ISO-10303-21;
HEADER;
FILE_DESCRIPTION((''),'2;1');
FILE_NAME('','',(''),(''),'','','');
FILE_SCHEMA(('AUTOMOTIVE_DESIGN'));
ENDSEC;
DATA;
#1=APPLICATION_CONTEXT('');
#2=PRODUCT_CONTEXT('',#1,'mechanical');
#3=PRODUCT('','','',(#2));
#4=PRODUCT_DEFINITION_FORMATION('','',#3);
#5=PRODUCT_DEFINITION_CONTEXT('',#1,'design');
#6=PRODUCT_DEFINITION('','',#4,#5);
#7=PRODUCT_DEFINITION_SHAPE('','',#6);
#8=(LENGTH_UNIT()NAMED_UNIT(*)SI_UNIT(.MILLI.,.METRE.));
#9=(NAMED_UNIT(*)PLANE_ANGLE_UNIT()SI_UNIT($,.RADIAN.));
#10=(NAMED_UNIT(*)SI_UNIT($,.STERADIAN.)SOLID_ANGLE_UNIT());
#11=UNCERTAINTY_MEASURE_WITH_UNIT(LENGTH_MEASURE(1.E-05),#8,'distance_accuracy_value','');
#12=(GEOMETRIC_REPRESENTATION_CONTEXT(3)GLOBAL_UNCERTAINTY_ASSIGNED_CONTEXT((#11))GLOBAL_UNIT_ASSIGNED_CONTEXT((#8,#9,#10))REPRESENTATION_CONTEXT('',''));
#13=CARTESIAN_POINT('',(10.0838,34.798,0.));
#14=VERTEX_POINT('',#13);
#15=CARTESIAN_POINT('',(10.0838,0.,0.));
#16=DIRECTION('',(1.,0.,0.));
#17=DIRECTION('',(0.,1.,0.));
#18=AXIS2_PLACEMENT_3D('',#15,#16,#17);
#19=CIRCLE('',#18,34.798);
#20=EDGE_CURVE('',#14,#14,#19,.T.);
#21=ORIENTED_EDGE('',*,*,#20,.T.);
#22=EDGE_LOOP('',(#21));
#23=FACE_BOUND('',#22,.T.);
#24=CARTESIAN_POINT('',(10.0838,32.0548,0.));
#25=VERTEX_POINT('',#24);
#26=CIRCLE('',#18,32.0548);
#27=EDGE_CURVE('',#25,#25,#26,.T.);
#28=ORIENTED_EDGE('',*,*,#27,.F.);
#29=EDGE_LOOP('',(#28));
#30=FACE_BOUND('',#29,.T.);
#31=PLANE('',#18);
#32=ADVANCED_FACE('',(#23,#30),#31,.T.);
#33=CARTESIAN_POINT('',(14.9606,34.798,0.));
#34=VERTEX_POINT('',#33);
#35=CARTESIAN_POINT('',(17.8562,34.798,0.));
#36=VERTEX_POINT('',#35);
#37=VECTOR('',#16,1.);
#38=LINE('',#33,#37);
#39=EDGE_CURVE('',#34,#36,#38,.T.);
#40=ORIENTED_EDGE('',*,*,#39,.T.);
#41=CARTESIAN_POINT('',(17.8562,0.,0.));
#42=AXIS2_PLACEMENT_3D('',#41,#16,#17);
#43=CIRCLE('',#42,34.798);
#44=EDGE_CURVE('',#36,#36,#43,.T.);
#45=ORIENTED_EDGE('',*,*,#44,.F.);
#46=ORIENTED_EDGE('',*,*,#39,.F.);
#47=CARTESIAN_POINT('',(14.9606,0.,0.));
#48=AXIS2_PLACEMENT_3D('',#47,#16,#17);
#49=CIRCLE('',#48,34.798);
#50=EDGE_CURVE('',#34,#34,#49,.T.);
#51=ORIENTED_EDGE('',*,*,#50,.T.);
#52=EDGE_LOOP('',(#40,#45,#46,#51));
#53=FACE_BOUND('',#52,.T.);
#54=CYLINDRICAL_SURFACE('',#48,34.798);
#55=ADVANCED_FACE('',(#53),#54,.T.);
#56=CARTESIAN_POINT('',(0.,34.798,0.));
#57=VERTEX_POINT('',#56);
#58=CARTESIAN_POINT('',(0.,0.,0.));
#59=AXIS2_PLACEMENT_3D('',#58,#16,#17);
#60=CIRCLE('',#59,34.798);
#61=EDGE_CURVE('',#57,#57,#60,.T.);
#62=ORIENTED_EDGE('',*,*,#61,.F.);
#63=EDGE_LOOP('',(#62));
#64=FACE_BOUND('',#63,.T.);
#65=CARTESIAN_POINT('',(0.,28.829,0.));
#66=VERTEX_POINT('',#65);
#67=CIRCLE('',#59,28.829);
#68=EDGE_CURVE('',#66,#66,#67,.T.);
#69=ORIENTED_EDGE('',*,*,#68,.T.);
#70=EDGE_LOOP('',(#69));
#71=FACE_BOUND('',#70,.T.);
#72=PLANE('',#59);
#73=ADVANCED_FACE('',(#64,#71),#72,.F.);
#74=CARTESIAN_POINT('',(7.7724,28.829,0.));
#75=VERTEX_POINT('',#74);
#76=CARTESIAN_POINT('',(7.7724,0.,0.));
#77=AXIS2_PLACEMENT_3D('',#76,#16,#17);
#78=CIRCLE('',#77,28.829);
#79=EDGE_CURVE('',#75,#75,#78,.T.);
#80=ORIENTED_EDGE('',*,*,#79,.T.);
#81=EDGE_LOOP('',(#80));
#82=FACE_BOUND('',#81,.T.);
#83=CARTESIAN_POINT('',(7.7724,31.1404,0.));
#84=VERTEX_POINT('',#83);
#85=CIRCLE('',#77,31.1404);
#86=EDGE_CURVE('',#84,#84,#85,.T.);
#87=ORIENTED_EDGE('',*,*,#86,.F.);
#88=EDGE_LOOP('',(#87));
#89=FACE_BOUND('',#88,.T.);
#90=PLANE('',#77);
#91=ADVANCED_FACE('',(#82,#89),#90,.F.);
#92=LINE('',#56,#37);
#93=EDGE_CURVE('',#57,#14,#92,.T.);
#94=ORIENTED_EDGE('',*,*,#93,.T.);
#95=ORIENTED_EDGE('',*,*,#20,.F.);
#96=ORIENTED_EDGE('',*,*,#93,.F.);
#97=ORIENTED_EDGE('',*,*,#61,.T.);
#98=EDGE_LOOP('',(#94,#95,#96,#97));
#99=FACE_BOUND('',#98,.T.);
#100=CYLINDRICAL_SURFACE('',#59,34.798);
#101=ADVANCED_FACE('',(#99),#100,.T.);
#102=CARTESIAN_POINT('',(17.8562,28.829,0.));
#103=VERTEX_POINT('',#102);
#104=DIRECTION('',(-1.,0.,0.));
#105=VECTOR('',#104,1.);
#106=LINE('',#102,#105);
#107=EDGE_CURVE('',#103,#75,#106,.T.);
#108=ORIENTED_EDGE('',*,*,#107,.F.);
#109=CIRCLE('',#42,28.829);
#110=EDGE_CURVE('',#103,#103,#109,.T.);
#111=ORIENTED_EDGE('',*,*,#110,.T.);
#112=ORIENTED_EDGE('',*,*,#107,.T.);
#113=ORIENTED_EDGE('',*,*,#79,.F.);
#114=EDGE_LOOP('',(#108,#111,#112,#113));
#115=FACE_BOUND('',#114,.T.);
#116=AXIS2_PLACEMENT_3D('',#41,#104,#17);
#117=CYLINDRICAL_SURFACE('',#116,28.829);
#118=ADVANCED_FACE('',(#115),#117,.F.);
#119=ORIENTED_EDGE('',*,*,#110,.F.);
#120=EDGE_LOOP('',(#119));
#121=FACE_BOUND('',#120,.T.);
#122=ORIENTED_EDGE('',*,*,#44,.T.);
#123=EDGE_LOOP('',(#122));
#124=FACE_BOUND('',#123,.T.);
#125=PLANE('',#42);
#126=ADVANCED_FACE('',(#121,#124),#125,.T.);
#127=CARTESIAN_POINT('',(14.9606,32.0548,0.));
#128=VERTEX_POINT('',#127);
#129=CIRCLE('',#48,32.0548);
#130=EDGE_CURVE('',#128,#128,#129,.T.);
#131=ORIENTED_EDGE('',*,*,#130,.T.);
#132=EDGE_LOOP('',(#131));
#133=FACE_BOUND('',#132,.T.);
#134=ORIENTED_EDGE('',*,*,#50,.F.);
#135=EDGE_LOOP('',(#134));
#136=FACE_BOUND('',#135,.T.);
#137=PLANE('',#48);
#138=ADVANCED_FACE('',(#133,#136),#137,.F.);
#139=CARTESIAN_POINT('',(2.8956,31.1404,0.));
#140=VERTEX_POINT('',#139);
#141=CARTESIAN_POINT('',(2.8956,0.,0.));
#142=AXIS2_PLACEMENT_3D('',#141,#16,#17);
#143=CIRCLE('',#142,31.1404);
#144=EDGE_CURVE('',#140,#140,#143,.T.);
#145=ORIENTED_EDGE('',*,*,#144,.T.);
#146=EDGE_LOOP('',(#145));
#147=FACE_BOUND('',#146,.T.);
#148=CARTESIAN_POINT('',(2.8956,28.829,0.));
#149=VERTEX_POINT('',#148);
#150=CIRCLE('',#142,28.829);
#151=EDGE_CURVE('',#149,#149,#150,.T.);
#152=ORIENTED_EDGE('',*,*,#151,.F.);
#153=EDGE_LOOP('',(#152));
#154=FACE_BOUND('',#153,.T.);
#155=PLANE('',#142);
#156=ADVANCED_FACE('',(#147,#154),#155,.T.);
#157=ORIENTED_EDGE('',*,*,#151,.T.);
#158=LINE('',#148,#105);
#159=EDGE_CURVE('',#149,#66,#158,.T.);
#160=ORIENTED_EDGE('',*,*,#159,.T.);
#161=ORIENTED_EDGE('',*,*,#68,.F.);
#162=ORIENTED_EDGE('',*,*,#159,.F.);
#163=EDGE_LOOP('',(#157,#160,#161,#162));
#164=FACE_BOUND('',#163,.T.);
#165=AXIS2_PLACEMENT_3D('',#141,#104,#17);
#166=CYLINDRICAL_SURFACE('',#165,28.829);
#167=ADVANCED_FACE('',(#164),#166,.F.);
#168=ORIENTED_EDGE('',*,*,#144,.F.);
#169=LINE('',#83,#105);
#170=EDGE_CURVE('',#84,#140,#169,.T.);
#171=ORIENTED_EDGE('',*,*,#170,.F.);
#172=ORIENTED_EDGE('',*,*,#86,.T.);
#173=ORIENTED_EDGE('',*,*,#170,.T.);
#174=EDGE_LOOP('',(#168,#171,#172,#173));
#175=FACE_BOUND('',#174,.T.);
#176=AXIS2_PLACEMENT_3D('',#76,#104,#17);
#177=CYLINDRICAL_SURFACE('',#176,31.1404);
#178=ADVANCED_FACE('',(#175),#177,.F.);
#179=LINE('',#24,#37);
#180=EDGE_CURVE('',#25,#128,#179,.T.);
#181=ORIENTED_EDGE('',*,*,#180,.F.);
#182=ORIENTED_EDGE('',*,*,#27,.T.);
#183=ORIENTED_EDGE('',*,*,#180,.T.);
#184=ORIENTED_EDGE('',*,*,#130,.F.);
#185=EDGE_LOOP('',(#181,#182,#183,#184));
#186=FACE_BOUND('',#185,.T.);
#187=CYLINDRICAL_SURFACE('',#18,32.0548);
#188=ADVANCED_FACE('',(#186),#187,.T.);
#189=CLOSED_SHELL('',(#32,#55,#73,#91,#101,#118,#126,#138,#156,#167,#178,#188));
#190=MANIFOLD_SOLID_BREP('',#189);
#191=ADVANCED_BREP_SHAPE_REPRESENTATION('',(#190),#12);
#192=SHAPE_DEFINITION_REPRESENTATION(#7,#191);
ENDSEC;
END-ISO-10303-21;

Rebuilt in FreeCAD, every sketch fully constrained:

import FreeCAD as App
import Part
import Sketcher

V = App.Vector
Q = App.Units.Quantity


def add_polygon(sketch, points):
    """Adds a closed chain of lines whose ends are joined by coincident constraints."""
    first, n = sketch.GeometryCount, len(points)
    for a, b in zip(points, points[1:] + points[:1]):
        sketch.addGeometry(Part.LineSegment(App.Vector(*a, 0), App.Vector(*b, 0)), False)
    for i in range(n):
        sketch.addConstraint(Sketcher.Constraint("Coincident", first + i, 2, first + (i + 1) % n, 1))

doc = App.newDocument("Part")
body = doc.addObject("PartDesign::Body", "Body")

sketch1 = body.newObject("Sketcher::SketchObject", "Sketch")
sketch1.AttachmentSupport = (doc.getObject("XY_Plane"), [""])
sketch1.MapMode = "FlatFace"
add_polygon(sketch1, [(0, 34.8), (0, 28.8), (2.9, 28.8), (2.9, 31.1), (7.8, 31.1), (7.8, 28.8), (17.9, 28.8), (17.9, 34.8), (15, 34.8), (15, 32.1), (10.1, 32.1), (10.1, 34.8)])
sketch1.addConstraint([
    Sketcher.Constraint("Vertical", 0),
    Sketcher.Constraint("Horizontal", 1),
    Sketcher.Constraint("Vertical", 2),
    Sketcher.Constraint("Horizontal", 3),
    Sketcher.Constraint("Vertical", 4),
    Sketcher.Constraint("Horizontal", 5),
    Sketcher.Constraint("Vertical", 6),
    Sketcher.Constraint("Horizontal", 7),
    Sketcher.Constraint("Vertical", 8),
    Sketcher.Constraint("Horizontal", 9),
    Sketcher.Constraint("Vertical", 10),
    Sketcher.Constraint("Horizontal", 11),
    Sketcher.Constraint("PointOnObject", 0, 2, -2),
    Sketcher.Constraint("Horizontal", 1, 2, 4, 2),
    Sketcher.Constraint("Horizontal", 7, 2, 10, 2),
    Sketcher.Constraint("Equal", 1, 7),
    Sketcher.Constraint("Equal", 3, 9),
    Sketcher.Constraint("DistanceX", 1, 1, 1, 2, Q("0.114 in")),
    Sketcher.Constraint("DistanceX", 3, 1, 3, 2, Q("0.192 in")),
    Sketcher.Constraint("DistanceX", 5, 1, 5, 2, Q("0.397 in")),
    Sketcher.Constraint("DistanceY", 0, 2, 0, 1, Q("0.235 in")),
    Sketcher.Constraint("DistanceY", 2, 1, 2, 2, Q("0.091 in")),
    Sketcher.Constraint("DistanceY", 8, 2, 8, 1, Q("0.108 in")),
    Sketcher.Constraint("DistanceY", -1, 1, 6, 2, Q("1.37 in")),
])
revolution = body.newObject("PartDesign::Revolution", "Revolution")
revolution.Profile = sketch1
revolution.ReferenceAxis = (sketch1, ["H_Axis"])
revolution.Angle = 360

doc.recompute()
